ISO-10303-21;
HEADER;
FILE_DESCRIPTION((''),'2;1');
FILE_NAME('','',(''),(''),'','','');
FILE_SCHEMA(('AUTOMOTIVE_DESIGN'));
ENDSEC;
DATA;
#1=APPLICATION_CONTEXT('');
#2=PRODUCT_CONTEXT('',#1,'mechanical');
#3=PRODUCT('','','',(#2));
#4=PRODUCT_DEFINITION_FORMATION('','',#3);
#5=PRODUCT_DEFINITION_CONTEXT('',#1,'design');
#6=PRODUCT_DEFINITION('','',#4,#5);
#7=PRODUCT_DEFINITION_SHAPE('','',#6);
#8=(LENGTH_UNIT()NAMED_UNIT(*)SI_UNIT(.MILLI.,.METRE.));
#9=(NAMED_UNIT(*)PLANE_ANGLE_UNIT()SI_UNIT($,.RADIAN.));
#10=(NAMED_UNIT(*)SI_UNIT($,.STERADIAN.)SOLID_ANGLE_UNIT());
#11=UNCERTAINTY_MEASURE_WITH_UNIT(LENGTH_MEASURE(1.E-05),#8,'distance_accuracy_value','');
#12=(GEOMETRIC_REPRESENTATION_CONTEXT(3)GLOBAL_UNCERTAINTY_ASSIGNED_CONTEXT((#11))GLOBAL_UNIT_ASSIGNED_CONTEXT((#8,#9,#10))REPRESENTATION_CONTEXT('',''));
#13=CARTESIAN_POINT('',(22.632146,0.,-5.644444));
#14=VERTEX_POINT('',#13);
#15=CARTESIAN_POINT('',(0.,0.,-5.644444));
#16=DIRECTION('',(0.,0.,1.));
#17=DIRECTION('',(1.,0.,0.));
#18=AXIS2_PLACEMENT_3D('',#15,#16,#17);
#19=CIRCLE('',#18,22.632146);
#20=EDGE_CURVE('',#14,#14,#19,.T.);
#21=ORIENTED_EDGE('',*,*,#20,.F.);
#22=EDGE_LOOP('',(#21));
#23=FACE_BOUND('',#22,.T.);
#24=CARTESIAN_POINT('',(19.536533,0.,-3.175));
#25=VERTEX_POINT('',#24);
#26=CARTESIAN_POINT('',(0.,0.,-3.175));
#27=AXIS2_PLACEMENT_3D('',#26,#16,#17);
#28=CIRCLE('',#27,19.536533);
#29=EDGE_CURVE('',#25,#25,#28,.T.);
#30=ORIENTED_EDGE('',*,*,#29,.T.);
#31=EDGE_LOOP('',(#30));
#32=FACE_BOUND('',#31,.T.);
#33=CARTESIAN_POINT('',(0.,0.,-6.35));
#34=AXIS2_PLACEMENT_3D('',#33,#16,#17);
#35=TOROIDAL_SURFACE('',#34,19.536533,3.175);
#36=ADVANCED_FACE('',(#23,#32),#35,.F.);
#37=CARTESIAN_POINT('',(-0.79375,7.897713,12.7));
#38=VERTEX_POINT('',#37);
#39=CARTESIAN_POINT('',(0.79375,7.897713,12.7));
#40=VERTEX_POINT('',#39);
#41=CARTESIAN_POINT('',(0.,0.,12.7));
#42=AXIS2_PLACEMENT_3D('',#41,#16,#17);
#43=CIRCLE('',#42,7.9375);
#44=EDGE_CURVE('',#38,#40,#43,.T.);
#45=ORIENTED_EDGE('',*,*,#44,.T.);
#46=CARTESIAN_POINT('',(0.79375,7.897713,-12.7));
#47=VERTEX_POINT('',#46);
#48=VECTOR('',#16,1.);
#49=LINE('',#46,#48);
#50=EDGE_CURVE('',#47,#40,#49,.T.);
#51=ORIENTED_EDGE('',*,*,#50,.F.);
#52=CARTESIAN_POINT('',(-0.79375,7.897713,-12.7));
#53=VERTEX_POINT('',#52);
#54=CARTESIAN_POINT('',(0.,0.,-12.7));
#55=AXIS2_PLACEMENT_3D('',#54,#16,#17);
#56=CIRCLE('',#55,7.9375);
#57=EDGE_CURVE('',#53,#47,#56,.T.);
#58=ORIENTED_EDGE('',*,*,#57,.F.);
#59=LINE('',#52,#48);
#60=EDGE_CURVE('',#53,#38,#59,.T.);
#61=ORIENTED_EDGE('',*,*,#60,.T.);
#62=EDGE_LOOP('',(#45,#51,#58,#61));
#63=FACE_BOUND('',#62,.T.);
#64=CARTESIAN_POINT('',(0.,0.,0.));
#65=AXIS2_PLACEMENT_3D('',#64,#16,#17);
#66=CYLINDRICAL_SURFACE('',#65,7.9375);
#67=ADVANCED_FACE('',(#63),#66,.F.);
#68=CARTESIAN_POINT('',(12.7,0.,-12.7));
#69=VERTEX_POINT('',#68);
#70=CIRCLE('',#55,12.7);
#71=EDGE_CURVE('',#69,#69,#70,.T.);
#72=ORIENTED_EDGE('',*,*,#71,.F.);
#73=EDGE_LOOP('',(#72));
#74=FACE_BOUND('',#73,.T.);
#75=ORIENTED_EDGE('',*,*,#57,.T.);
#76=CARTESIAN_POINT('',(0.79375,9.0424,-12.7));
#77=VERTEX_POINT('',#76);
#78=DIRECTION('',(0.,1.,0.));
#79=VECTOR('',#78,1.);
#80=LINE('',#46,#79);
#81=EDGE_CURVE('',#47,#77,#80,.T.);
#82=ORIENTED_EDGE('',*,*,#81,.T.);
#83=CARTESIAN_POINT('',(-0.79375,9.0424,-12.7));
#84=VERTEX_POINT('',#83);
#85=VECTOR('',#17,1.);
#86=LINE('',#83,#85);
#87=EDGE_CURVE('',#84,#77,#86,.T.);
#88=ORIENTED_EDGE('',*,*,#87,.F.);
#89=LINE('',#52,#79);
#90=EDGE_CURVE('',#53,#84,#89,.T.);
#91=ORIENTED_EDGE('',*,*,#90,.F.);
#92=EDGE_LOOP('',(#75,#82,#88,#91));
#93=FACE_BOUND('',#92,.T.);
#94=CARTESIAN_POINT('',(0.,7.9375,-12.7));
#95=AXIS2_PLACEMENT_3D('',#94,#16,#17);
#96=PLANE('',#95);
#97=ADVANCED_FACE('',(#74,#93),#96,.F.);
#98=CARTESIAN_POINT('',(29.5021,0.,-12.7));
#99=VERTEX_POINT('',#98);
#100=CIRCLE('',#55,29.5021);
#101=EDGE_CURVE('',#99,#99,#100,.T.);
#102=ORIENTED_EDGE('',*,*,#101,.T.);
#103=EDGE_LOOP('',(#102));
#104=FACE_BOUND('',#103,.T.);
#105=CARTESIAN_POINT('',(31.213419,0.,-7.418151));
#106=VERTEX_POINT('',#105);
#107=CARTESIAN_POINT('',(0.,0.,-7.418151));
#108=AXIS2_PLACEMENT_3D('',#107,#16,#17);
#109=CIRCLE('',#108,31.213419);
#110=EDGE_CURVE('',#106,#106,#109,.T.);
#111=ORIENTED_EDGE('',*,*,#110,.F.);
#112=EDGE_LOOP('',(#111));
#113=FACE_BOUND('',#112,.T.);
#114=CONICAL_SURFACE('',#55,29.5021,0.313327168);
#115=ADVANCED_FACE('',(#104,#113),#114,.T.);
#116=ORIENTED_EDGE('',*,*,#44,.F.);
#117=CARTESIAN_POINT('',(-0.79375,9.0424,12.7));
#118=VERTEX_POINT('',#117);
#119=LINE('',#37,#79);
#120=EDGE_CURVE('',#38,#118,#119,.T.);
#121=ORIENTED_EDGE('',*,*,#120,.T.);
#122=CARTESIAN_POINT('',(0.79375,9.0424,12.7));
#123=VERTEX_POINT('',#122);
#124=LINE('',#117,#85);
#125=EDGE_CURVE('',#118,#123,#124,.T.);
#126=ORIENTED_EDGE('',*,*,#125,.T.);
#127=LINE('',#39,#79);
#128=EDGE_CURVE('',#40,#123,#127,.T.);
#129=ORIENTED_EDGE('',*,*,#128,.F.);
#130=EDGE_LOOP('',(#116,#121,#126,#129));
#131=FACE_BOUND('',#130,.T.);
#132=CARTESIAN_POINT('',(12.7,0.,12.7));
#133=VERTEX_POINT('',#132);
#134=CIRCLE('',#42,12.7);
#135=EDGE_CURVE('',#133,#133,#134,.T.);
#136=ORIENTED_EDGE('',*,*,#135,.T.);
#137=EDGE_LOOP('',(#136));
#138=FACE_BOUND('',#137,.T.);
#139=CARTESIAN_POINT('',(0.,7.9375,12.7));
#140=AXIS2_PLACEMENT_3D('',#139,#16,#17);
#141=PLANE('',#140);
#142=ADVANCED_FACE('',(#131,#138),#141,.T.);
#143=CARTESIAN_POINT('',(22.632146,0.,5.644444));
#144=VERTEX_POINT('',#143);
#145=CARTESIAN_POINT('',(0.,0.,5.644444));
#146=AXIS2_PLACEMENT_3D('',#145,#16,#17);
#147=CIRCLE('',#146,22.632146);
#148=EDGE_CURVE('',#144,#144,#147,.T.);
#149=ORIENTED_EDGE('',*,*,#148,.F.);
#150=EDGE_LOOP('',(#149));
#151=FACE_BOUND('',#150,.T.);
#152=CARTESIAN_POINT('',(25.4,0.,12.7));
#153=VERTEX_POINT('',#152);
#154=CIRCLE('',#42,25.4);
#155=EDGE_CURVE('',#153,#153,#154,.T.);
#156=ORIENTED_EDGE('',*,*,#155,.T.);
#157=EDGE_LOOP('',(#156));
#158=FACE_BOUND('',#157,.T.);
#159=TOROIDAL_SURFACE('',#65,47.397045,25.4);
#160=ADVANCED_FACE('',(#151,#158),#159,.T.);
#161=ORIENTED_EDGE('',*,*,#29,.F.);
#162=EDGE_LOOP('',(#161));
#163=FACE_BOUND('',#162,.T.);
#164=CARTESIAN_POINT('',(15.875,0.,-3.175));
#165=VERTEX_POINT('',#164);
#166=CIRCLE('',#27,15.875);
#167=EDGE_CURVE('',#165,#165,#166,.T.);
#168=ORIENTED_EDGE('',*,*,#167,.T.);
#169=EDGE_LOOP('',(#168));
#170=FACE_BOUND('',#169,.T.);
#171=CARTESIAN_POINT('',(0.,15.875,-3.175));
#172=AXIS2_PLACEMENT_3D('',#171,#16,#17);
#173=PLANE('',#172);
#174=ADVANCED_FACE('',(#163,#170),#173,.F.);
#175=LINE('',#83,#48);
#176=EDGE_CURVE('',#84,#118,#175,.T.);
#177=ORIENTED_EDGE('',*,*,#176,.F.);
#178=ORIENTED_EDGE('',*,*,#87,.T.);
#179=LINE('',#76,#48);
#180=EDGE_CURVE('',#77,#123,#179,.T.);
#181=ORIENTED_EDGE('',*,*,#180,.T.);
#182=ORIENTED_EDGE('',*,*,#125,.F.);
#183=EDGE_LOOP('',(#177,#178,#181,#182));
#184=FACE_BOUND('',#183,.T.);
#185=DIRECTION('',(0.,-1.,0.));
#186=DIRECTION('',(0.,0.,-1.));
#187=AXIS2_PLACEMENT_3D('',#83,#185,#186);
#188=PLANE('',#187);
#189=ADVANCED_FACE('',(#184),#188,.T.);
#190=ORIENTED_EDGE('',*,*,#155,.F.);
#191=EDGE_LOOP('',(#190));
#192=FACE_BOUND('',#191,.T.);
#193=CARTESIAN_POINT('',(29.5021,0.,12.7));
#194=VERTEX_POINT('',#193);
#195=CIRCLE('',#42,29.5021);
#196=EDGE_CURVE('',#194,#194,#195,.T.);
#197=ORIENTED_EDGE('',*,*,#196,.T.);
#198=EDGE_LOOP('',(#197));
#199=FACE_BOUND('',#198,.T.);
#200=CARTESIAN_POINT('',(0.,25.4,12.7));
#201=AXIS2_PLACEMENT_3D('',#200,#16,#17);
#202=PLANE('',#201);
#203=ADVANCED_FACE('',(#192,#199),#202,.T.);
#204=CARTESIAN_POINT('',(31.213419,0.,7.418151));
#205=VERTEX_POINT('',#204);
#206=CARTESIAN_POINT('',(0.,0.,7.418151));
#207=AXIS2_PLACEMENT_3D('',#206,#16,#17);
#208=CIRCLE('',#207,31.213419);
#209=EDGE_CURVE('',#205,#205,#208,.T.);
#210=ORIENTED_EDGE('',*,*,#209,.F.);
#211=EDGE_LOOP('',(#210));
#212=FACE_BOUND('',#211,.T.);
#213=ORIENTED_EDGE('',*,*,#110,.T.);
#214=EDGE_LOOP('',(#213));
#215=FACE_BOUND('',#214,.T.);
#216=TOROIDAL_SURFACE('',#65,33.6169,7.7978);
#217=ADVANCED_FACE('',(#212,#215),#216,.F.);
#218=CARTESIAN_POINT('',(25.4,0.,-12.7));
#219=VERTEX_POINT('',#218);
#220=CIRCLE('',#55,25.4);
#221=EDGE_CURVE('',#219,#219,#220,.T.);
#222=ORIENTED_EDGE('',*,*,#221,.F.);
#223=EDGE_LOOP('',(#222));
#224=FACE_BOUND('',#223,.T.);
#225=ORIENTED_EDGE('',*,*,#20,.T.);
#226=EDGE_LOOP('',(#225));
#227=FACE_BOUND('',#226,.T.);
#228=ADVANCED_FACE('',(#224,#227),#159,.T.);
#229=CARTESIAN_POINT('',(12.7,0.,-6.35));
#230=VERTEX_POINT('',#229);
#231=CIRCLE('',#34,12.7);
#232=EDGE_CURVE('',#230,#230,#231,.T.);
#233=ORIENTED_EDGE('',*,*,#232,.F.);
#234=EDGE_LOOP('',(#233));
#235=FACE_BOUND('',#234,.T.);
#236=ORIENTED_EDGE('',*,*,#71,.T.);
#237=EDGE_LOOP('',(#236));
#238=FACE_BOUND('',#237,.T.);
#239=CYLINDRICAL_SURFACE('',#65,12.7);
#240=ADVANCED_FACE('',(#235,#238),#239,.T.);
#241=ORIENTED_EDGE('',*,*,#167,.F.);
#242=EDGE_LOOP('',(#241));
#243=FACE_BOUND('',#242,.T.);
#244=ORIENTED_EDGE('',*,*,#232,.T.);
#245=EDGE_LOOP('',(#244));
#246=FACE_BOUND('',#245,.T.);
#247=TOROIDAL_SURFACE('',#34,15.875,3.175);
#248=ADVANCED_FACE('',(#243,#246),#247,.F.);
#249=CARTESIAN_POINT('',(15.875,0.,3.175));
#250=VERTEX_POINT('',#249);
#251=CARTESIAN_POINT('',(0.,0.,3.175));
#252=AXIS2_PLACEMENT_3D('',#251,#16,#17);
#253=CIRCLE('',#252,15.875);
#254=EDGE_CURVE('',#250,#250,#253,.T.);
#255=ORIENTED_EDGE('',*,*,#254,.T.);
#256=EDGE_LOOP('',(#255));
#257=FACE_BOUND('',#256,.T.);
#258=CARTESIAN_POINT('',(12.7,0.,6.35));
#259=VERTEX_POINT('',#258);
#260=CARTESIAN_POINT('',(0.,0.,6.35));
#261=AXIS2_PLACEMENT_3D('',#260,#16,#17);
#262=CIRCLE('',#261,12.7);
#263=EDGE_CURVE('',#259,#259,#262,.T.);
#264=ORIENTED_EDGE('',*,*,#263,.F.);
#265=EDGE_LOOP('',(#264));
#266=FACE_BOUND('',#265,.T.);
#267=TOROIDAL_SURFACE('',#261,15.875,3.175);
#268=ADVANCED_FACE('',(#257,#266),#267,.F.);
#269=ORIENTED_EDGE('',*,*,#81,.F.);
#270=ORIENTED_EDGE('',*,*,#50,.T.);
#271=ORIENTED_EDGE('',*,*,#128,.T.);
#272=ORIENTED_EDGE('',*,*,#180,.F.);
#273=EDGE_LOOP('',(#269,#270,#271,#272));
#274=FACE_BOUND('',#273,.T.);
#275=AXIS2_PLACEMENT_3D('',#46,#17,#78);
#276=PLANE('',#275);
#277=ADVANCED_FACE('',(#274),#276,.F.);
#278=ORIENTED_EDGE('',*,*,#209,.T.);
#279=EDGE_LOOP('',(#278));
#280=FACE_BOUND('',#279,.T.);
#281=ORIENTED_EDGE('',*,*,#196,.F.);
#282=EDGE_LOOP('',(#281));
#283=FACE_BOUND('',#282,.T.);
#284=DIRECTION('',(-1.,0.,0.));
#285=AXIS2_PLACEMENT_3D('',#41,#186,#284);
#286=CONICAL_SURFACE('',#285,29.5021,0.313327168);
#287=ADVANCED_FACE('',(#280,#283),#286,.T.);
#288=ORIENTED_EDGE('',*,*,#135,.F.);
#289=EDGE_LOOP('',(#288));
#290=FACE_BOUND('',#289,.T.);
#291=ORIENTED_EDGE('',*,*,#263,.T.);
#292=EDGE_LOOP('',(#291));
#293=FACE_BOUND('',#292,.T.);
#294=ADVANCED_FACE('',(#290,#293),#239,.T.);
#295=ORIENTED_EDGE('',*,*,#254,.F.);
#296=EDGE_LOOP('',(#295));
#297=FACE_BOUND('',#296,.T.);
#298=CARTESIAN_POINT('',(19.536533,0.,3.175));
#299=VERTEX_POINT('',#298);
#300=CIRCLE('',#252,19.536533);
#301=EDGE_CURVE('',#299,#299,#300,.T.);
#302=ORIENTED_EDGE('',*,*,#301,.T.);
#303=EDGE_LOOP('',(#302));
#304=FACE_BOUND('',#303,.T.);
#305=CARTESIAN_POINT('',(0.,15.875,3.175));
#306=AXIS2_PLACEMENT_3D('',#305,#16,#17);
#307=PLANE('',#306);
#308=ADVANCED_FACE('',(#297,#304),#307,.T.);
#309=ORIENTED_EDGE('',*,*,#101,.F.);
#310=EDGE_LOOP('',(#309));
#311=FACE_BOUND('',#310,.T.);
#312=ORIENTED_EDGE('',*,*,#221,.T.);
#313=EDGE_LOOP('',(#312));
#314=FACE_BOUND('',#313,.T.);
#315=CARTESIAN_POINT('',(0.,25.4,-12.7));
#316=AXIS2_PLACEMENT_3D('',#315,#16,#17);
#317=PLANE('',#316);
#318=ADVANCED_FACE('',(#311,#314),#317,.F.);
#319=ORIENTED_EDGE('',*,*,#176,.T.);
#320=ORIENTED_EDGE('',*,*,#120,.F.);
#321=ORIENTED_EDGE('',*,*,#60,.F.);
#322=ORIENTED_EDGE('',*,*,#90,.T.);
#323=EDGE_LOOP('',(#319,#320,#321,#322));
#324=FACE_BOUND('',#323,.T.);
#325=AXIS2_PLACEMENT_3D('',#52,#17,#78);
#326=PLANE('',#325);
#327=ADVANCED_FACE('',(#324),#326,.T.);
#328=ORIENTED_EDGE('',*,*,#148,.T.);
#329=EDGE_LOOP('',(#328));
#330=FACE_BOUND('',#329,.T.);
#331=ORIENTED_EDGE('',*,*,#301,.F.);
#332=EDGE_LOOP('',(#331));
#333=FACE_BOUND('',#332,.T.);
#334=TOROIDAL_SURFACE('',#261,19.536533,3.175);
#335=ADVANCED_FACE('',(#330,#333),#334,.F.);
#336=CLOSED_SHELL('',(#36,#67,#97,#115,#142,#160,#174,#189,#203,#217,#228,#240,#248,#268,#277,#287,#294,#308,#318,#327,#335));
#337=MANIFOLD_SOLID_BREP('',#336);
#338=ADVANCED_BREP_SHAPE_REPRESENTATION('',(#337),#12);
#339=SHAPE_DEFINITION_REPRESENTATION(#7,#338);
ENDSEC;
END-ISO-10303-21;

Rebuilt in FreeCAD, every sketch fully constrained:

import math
import FreeCAD as App
import Part
import Sketcher

V = App.Vector
Q = App.Units.Quantity

doc = App.newDocument("Part")
body = doc.addObject("PartDesign::Body", "Body")

# Sketch on YZ plane
sketch1 = body.newObject("Sketcher::SketchObject", "Sketch")
sketch1.AttachmentSupport = (doc.getObject("YZ_Plane"), [""])
sketch1.MapMode = "FlatFace"
sketch1.addGeometry([
    Part.LineSegment(V(7.9375, 12.7, 0), V(7.9375, -12.7, 0)),  # 0
    Part.LineSegment(V(7.9375, -12.7, 0), V(12.7, -12.7, 0)),  # 1
    Part.LineSegment(V(12.7, -12.7, 0), V(12.7, -6.35, 0)),  # 2
    Part.ArcOfCircle(Part.Circle(V(15.875, -6.35, 0), V(0, 0, 1), 3.175), math.radians(90), math.radians(180)),  # 3
    Part.LineSegment(V(15.875, -3.175, 0), V(19.536533, -3.175, 0)),  # 4
    Part.ArcOfCircle(Part.Circle(V(19.536533, -6.35, 0), V(0, 0, 1), 3.175), math.radians(12.839588), math.radians(90)),  # 5
    Part.ArcOfCircle(Part.Circle(V(47.397045, 0, 0), V(0, 0, 1), 25.4), math.radians(-167.160412), math.radians(-150)),  # 6
    Part.LineSegment(V(25.4, -12.7, 0), V(29.5021, -12.7, 0)),  # 7
    Part.LineSegment(V(29.5021, -12.7, 0), V(31.213419, -7.418151, 0)),  # 8
    Part.ArcOfCircle(Part.Circle(V(33.6169, 0, 0), V(0, 0, 1), 7.7978), math.radians(107.952324), math.radians(252.047676)),  # 9
    Part.LineSegment(V(31.213419, 7.418151, 0), V(29.5021, 12.7, 0)),  # 10
    Part.LineSegment(V(29.5021, 12.7, 0), V(25.4, 12.7, 0)),  # 11
    Part.ArcOfCircle(Part.Circle(V(47.397045, 0, 0), V(0, 0, 1), 25.4), math.radians(150), math.radians(167.160412)),  # 12
    Part.ArcOfCircle(Part.Circle(V(19.536533, 6.35, 0), V(0, 0, 1), 3.175), math.radians(-90), math.radians(-12.839588)),  # 13
    Part.LineSegment(V(19.536533, 3.175, 0), V(15.875, 3.175, 0)),  # 14
    Part.ArcOfCircle(Part.Circle(V(15.875, 6.35, 0), V(0, 0, 1), 3.175), math.radians(-180), math.radians(-90)),  # 15
    Part.LineSegment(V(12.7, 6.35, 0), V(12.7, 12.7, 0)),  # 16
    Part.LineSegment(V(12.7, 12.7, 0), V(7.9375, 12.7, 0)),  # 17
], False)
sketch1.addConstraint([
    Sketcher.Constraint("Coincident", 0, 2, 1, 1),
    Sketcher.Constraint("Coincident", 1, 2, 2, 1),
    Sketcher.Constraint("Tangent", 2, 2, 3, 2),
    Sketcher.Constraint("Tangent", 3, 1, 4, 1),
    Sketcher.Constraint("Tangent", 4, 2, 5, 2),
    Sketcher.Constraint("Tangent", 5, 1, 6, 1),
    Sketcher.Constraint("Coincident", 6, 2, 7, 1),
    Sketcher.Constraint("Coincident", 7, 2, 8, 1),
    Sketcher.Constraint("Coincident", 8, 2, 9, 2),
    Sketcher.Constraint("Coincident", 9, 1, 10, 1),
    Sketcher.Constraint("Coincident", 10, 2, 11, 1),
    Sketcher.Constraint("Coincident", 11, 2, 12, 1),
    Sketcher.Constraint("Tangent", 12, 2, 13, 2),
    Sketcher.Constraint("Tangent", 13, 1, 14, 1),
    Sketcher.Constraint("Tangent", 14, 2, 15, 2),
    Sketcher.Constraint("Tangent", 15, 1, 16, 1),
    Sketcher.Constraint("Coincident", 16, 2, 17, 1),
    Sketcher.Constraint("Coincident", 17, 2, 0, 1),
    Sketcher.Constraint("Vertical", 0),
    Sketcher.Constraint("Horizontal", 1),
    Sketcher.Constraint("Vertical", 2),
    Sketcher.Constraint("Horizontal", 4),
    Sketcher.Constraint("Horizontal", 7),
    Sketcher.Constraint("Horizontal", 11),
    Sketcher.Constraint("Horizontal", 14),
    Sketcher.Constraint("Vertical", 16),
    Sketcher.Constraint("Horizontal", 17),
    Sketcher.Constraint("Coincident", 12, 3, 6, 3),
    Sketcher.Constraint("Equal", 3, 5),
    Sketcher.Constraint("Equal", 6, 12),
    Sketcher.Constraint("Equal", 5, 13),
    Sketcher.Constraint("Equal", 13, 15),
    Sketcher.Constraint("Symmetric", 5, 3, 13, 3, -1),
    Sketcher.Constraint("Symmetric", 8, 2, 9, 1, -1),
    Sketcher.Constraint("Symmetric", 7, 2, 10, 2, -1),
    Sketcher.Constraint("Symmetric", 1, 2, 16, 2, -1),
    Sketcher.Constraint("Horizontal", 1, 2, 6, 2),
    Sketcher.Constraint("Radius", 6, Q("1 in")),
    Sketcher.Constraint("DistanceY", 0, 2, 0, 1, Q("1 in")),
    Sketcher.Constraint("DistanceX", -1, 1, 6, 2, Q("1 in")),
    Sketcher.Constraint("Radius", 3, Q("0.125 in")),
    Sketcher.Constraint("Radius", 9, Q("0.307 in")),
    Sketcher.Constraint("DistanceY", 2, 1, 2, 2, Q("0.25 in")),
    Sketcher.Constraint("DistanceX", -1, 1, 1, 2, Q("0.5 in")),
    Sketcher.Constraint("DistanceX", 1, 1, 1, 2, Q("0.1875 in")),
    Sketcher.Constraint("DistanceX", 7, 1, 7, 2, Q("0.1615 in")),
    Sketcher.Constraint("DistanceX", 0, 2, 9, 3, Q("1.011 in")),
    Sketcher.Constraint("DistanceX", -1, 1, 8, 2, 31.213419),
])
revolution = body.newObject("PartDesign::Revolution", "Revolution")
revolution.Profile = sketch1
revolution.ReferenceAxis = (sketch1, ["V_Axis"])
revolution.Angle = 360

# Sketch on XY plane
sketch2 = body.newObject("Sketcher::SketchObject", "Sketch001")
sketch2.AttachmentSupport = (doc.getObject("XY_Plane"), [""])
sketch2.MapMode = "FlatFace"
sketch2.AttachmentOffset = App.Placement(V(0, 0, 0.5 * 25.4), App.Rotation())
sketch2.addGeometry([
    Part.LineSegment(V(-0.79375, 9.0424, 0), V(-0.79375, 7.897713, 0)),
    Part.ArcOfCircle(Part.Circle(V(0, 0, 0), V(0, 0, 1), 7.9375), math.radians(84.26083), math.radians(95.73917)),
    Part.LineSegment(V(0.79375, 7.897713, 0), V(0.79375, 9.0424, 0)),
    Part.LineSegment(V(0.79375, 9.0424, 0), V(-0.79375, 9.0424, 0)),
], False)
sketch2.addConstraint([
    Sketcher.Constraint("Coincident", 0, 2, 1, 2),
    Sketcher.Constraint("Coincident", 1, 1, 2, 1),
    Sketcher.Constraint("Coincident", 2, 2, 3, 1),
    Sketcher.Constraint("Coincident", 3, 2, 0, 1),
    Sketcher.Constraint("Vertical", 0),
    Sketcher.Constraint("Vertical", 2),
    Sketcher.Constraint("Horizontal", 3),
    Sketcher.Constraint("Coincident", 1, 3, -1, 1),
    Sketcher.Constraint("Horizontal", 0, 2, 1, 1),
    Sketcher.Constraint("Radius", 1, Q("0.3125 in")),
    Sketcher.Constraint("DistanceX", 3, 2, 3, 1, Q("0.0625 in")),
    Sketcher.Constraint("DistanceY", -1, 1, 2, 2, Q("0.356 in")),
])
pocket1 = body.newObject("PartDesign::Pocket", "Pocket")
pocket1.Profile = sketch2
pocket1.Type = "ThroughAll"

doc.recompute()
